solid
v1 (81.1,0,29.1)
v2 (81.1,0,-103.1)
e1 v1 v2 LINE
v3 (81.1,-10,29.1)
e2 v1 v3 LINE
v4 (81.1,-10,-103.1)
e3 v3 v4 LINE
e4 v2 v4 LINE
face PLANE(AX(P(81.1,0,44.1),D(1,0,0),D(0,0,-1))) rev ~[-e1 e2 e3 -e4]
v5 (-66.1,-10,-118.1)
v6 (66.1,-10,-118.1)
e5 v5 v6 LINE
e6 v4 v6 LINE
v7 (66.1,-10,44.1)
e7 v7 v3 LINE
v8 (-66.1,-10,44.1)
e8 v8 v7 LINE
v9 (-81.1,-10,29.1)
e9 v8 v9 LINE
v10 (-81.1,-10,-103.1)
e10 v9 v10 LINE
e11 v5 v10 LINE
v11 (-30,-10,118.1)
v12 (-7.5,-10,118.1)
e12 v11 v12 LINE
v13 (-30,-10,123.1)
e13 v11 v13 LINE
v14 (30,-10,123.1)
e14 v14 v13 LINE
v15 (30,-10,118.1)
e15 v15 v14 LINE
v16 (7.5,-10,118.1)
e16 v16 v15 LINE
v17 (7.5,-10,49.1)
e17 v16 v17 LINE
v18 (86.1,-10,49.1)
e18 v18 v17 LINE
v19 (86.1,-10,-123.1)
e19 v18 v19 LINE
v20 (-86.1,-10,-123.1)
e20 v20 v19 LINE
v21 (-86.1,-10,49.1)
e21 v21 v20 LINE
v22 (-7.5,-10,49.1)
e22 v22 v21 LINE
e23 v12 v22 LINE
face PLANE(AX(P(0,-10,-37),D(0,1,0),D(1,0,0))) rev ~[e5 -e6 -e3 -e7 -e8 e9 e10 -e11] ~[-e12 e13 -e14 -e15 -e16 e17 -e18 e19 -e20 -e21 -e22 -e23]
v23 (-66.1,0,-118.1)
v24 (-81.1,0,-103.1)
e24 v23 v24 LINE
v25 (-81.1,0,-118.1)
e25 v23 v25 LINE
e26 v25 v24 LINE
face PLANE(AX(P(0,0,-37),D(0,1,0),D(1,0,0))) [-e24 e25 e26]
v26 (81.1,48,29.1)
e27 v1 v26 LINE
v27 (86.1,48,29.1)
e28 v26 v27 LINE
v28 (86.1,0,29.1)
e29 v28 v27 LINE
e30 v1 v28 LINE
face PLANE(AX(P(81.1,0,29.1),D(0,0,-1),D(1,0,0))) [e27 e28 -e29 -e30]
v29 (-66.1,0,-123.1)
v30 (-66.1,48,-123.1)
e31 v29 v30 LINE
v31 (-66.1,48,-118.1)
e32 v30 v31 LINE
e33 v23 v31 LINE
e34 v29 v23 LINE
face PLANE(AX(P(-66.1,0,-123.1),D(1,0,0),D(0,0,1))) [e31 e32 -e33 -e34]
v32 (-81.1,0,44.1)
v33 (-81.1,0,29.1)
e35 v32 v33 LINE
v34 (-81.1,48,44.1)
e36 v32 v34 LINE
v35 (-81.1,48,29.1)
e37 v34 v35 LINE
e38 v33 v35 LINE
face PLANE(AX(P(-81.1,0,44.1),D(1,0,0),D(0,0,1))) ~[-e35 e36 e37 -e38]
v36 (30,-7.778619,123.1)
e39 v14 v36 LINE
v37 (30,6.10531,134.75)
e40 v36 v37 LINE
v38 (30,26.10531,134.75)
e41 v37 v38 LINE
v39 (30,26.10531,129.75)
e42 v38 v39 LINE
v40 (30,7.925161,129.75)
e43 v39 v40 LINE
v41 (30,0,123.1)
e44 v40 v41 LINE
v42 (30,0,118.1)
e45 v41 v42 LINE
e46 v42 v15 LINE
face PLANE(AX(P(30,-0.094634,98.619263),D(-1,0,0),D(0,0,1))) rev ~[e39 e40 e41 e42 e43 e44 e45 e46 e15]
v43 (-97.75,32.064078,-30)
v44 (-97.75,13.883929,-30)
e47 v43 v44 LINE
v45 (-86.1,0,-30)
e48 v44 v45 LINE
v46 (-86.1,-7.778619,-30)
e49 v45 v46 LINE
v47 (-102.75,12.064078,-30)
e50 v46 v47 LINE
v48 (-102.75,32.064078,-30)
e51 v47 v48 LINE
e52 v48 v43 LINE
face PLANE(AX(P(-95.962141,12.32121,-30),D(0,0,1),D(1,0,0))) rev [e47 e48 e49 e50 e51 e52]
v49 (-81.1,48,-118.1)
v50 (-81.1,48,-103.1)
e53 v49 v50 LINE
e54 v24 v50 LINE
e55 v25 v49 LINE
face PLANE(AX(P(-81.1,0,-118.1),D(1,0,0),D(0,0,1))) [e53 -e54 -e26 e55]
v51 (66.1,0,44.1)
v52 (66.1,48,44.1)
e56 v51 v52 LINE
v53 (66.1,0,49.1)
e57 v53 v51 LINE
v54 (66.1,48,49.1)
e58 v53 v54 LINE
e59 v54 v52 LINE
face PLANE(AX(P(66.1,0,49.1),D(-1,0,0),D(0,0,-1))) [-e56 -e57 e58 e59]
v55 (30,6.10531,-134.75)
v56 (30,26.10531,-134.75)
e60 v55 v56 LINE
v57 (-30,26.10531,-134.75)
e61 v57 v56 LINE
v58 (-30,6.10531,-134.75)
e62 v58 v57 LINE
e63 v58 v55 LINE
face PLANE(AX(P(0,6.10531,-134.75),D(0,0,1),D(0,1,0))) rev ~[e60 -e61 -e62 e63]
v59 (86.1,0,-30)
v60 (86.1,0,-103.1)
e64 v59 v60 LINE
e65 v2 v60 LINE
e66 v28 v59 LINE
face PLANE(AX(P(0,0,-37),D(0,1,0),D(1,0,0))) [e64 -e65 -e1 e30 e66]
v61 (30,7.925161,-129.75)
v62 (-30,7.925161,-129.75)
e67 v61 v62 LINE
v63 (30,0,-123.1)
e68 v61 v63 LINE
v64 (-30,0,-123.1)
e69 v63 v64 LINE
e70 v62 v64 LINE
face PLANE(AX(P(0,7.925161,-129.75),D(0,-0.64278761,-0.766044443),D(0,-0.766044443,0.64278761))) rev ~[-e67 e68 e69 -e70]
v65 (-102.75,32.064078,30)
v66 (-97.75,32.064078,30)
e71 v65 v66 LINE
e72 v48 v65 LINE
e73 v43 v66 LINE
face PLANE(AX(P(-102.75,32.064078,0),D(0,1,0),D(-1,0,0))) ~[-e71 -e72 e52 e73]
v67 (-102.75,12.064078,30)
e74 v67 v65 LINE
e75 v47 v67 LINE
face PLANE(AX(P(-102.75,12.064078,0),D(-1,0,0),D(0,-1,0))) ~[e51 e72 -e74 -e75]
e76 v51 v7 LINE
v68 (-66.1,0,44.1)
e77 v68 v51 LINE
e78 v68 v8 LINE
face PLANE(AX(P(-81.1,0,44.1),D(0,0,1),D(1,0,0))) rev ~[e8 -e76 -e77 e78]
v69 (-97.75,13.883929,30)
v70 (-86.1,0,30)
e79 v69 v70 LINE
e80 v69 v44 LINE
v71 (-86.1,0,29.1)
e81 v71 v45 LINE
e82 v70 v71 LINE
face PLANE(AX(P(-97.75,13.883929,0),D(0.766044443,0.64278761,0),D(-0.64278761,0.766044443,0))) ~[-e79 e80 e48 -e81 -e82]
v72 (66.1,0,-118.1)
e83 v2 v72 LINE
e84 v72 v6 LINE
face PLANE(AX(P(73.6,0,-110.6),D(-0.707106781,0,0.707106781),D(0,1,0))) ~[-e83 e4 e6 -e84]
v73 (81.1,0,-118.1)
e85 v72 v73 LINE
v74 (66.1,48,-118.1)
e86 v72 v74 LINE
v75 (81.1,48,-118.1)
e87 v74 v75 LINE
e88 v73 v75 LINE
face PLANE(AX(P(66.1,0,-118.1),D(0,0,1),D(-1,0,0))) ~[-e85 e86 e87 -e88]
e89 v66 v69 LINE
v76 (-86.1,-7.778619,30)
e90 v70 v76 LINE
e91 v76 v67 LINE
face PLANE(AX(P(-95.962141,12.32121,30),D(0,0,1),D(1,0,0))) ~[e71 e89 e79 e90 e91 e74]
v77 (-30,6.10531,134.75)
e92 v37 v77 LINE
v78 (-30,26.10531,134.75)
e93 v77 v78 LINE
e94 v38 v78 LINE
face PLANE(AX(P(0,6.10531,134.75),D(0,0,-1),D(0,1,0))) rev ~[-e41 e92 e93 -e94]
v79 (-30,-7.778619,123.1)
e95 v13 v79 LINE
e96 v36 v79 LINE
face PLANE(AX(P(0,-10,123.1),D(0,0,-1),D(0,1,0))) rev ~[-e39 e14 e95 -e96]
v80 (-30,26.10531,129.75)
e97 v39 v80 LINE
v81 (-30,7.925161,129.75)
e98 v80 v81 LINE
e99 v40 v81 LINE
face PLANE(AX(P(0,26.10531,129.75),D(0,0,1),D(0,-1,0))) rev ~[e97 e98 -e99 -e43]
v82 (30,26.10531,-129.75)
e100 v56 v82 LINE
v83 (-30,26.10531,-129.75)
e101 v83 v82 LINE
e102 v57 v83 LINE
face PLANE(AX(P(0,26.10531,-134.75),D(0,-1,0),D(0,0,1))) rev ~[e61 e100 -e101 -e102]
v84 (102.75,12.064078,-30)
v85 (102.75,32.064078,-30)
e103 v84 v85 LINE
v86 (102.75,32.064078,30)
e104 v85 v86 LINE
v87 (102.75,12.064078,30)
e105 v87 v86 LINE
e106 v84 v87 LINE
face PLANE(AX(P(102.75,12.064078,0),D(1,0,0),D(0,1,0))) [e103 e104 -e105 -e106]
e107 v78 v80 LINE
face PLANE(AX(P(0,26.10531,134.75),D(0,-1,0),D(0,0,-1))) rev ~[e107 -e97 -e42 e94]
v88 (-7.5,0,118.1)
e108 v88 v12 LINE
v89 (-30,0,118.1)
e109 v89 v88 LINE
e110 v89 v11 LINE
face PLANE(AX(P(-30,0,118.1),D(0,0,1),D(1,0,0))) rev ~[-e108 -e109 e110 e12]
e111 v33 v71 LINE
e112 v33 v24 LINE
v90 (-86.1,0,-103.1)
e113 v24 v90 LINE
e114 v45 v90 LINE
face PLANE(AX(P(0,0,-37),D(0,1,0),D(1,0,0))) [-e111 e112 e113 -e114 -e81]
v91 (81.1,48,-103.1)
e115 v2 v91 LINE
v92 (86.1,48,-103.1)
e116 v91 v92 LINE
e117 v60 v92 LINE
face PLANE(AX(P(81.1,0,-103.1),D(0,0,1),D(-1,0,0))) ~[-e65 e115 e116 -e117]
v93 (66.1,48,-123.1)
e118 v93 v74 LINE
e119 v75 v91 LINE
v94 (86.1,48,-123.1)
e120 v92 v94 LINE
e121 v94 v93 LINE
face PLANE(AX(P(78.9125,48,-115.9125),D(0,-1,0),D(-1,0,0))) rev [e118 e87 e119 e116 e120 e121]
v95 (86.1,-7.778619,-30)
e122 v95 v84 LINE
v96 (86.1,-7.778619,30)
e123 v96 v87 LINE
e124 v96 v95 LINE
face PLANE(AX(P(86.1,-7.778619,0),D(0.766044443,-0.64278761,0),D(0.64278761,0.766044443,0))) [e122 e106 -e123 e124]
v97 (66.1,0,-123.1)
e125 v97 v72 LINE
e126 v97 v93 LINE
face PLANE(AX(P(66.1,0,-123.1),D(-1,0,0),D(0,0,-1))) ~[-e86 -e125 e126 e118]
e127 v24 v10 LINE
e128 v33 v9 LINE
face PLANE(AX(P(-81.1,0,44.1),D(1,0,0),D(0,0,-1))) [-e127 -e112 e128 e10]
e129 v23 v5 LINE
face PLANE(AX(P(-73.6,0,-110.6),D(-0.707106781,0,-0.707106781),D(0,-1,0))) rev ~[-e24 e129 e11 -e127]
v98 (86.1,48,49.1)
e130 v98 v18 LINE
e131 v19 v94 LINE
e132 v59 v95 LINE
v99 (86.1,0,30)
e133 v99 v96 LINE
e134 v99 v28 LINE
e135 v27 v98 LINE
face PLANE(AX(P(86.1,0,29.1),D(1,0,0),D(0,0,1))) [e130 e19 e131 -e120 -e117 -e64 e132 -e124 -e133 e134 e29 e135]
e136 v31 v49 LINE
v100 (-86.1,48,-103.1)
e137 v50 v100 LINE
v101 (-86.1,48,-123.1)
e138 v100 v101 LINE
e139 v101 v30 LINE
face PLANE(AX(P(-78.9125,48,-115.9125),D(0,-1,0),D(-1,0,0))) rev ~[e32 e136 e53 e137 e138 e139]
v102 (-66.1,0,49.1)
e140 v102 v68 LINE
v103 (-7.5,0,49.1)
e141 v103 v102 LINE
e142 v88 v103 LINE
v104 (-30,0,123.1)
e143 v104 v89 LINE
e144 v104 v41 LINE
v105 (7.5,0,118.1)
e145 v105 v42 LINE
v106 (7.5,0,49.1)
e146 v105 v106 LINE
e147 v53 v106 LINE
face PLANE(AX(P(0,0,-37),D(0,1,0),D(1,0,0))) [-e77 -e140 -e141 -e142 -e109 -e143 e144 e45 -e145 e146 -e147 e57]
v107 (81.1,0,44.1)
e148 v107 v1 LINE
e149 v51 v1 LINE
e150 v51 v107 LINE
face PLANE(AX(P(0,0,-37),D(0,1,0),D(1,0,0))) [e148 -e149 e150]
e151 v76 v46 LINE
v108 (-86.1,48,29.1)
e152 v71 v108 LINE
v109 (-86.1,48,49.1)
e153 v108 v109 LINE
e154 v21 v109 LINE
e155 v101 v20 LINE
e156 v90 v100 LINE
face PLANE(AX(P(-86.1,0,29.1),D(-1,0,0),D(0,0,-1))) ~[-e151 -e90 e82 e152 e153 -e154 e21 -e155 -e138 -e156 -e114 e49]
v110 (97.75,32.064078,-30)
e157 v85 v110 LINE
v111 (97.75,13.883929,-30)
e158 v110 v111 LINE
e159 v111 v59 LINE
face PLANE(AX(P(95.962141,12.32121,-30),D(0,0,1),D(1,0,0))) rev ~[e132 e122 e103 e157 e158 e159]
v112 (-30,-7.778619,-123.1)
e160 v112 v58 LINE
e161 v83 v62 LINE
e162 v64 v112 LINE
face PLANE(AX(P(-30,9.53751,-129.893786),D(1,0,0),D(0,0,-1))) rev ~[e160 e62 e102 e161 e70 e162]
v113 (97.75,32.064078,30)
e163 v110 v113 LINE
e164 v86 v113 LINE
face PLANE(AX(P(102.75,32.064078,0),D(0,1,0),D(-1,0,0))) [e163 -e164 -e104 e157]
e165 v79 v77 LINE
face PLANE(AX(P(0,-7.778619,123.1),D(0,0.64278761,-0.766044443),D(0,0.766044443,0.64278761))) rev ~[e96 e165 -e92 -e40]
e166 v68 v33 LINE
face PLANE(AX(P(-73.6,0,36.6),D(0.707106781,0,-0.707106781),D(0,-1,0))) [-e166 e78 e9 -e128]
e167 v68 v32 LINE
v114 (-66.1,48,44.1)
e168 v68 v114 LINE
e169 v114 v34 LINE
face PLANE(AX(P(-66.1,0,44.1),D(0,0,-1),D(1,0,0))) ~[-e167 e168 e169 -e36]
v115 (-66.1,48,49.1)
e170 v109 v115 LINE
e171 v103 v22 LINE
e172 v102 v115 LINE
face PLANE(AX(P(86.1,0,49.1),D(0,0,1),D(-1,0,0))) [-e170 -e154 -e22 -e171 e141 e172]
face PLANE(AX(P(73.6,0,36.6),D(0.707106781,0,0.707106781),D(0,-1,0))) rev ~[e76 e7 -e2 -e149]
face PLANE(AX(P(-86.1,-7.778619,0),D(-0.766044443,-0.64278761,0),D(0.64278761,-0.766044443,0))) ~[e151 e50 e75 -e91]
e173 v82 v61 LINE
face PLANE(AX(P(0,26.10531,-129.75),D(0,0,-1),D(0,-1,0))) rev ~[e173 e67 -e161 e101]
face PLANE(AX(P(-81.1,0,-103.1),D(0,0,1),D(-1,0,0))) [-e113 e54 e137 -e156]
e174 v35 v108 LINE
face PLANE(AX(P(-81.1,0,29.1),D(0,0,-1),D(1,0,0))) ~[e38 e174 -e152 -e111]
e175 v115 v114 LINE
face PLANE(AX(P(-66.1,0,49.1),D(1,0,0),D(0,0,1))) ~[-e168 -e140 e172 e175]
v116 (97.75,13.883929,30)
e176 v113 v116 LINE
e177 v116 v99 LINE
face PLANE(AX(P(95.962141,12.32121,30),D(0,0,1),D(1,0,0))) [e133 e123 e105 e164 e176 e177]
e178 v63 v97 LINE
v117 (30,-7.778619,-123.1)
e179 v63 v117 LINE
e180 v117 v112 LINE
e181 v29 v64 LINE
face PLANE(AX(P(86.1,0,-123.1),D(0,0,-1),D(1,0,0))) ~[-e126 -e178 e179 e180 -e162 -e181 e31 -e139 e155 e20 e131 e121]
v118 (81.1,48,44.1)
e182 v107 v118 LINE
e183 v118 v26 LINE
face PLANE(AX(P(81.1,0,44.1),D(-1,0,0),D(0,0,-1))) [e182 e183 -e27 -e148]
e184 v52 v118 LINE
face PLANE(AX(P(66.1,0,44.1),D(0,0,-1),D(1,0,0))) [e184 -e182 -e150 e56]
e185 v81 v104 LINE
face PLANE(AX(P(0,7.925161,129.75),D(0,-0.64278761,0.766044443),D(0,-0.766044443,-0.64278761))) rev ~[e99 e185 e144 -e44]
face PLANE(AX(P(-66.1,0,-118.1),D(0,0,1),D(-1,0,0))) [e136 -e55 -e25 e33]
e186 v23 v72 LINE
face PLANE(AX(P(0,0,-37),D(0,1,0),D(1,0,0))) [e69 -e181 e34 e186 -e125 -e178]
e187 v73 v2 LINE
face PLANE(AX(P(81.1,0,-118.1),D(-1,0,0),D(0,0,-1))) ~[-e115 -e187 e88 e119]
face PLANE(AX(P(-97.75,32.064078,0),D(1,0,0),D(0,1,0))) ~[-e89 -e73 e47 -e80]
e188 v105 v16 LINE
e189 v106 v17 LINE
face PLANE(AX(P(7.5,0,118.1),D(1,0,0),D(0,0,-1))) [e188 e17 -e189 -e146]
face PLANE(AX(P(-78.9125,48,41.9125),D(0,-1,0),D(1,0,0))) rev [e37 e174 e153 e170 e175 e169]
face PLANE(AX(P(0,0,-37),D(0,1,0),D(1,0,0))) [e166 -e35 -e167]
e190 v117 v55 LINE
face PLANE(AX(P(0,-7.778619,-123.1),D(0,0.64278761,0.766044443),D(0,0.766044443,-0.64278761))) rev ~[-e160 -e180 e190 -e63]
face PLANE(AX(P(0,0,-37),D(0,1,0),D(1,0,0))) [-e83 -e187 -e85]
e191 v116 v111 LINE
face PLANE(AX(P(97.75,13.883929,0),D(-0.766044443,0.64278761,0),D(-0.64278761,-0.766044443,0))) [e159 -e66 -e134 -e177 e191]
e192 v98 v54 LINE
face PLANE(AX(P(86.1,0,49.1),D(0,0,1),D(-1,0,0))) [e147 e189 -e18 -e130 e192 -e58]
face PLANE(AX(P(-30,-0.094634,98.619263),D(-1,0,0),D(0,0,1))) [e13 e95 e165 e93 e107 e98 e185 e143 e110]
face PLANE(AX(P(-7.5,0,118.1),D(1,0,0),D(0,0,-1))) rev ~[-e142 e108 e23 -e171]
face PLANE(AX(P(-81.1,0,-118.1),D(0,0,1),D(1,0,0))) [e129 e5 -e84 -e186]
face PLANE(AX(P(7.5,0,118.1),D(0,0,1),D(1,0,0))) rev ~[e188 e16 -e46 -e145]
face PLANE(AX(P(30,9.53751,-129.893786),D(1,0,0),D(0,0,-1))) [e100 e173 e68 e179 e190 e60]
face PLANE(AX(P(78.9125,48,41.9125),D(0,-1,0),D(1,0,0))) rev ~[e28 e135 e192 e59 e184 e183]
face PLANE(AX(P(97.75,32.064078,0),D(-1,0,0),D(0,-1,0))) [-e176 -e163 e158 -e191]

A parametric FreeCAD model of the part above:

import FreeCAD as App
import Part
import Sketcher
Q = App.Units.Quantity


def edges_at(feature, points):
    """Names of the edges that pass closest to the given points."""
    edges = feature.Shape.Edges
    near = lambda p: min(range(len(edges)), key=lambda i: edges[i].distToShape(Part.Vertex(*p))[0])
    return sorted({f"Edge{near(p) + 1}" for p in points})


def add_polygon(sketch, points):
    """Adds a closed chain of lines whose ends are joined by coincident constraints."""
    first, n = sketch.GeometryCount, len(points)
    for a, b in zip(points, points[1:] + points[:1]):
        sketch.addGeometry(Part.LineSegment(App.Vector(*a, 0), App.Vector(*b, 0)), False)
    for i in range(n):
        sketch.addConstraint(Sketcher.Constraint("Coincident", first + i, 2, first + (i + 1) % n, 1))

doc = App.newDocument("Part")
body = doc.addObject("PartDesign::Body", "Body")

# Sketch on XZ plane
sketch1 = body.newObject("Sketcher::SketchObject", "Sketch")
sketch1.AttachmentSupport = (doc.getObject("XZ_Plane"), [""])
sketch1.MapMode = "FlatFace"
add_polygon(sketch1, [(-86, -123), (-86, 49), (86, 49), (86, -123)])  # lines 0-3
add_polygon(sketch1, [(81, 44), (-81, 44), (-81, -118), (81, -118)])  # lines 4-7
sketch1.addConstraint([
    Sketcher.Constraint("Vertical", 0),
    Sketcher.Constraint("Horizontal", 1),
    Sketcher.Constraint("Vertical", 2),
    Sketcher.Constraint("Horizontal", 3),
    Sketcher.Constraint("Horizontal", 4),
    Sketcher.Constraint("Vertical", 5),
    Sketcher.Constraint("Horizontal", 6),
    Sketcher.Constraint("Vertical", 7),
    Sketcher.Constraint("Equal", 3, 0),
    Sketcher.Constraint("Equal", 6, 5),
    Sketcher.Constraint("DistanceX", 1, 1, 1, 2, Q("172.2 mm")),
    Sketcher.Constraint("DistanceX", 4, 2, 4, 1, Q("162.2 mm")),
    Sketcher.Constraint("DistanceX", 0, 2, 4, 2, Q("5 mm")),
    Sketcher.Constraint("DistanceY", 4, 2, 0, 2, Q("5 mm")),
    Sketcher.Constraint("DistanceX", 0, 2, -1, 1, Q("86.1 mm")),
    Sketcher.Constraint("DistanceY", -1, 1, 0, 2, Q("49.1 mm")),
])
pad1 = body.newObject("PartDesign::Pad", "Pad")
pad1.Profile = sketch1
pad1.Length = 10
doc.recompute()

chamfer = body.newObject("PartDesign::Chamfer", "Chamfer")
chamfer.Base = (pad1, edges_at(pad1, [
    (-81.1, -5, 44.1),
    (-81.1, -5, -118.1),
    (81.1, -5, -118.1),
    (81.1, -5, 44.1),
]))
chamfer.Size = 15

# Sketch on XZ plane
sketch2 = body.newObject("Sketcher::SketchObject", "Sketch001")
sketch2.AttachmentSupport = (doc.getObject("XZ_Plane"), [""])
sketch2.MapMode = "FlatFace"
add_polygon(sketch2, [(-86, -103), (-81, -103), (-81, -118), (-66, -118), (-66, -123), (-86, -123)])  # lines 0-5
sketch2.addConstraint([
    Sketcher.Constraint("Horizontal", 0),
    Sketcher.Constraint("Vertical", 1),
    Sketcher.Constraint("Horizontal", 2),
    Sketcher.Constraint("Vertical", 3),
    Sketcher.Constraint("Horizontal", 4),
    Sketcher.Constraint("Vertical", 5),
    Sketcher.Constraint("Equal", 2, 1),
    Sketcher.Constraint("Equal", 0, 3),
    Sketcher.Constraint("DistanceX", 0, 1, 0, 2, Q("5 mm")),
    Sketcher.Constraint("DistanceX", 2, 1, 2, 2, Q("15 mm")),
    Sketcher.Constraint("DistanceX", 0, 2, -1, 1, Q("81.1 mm")),
    Sketcher.Constraint("DistanceY", 0, 2, -1, 1, Q("103.1 mm")),
])
pad2 = body.newObject("PartDesign::Pad", "Pad001")
pad2.Profile = sketch2
pad2.Length = 48
pad2.Reversed = True
doc.recompute()

datumplane = body.newObject("PartDesign::Plane", "DatumPlane")
datumplane.AttachmentSupport = (doc.getObject("XY_Plane"), [""])
datumplane.MapMode = "FlatFace"
datumplane.AttachmentOffset = App.Placement(App.Vector(0, 0, -37), App.Rotation())
mirrored = body.newObject("PartDesign::Mirrored", "Mirrored")
mirrored.Originals = [pad2]
mirrored.MirrorPlane = (datumplane, [""])
body.Tip = mirrored
doc.recompute()

mirrored2 = body.newObject("PartDesign::Mirrored", "Mirrored001")
mirrored2.Originals = [pad2]
mirrored2.MirrorPlane = (doc.getObject("YZ_Plane"), [""])
body.Tip = mirrored2

# Sketch on XZ plane
sketch3 = body.newObject("Sketcher::SketchObject", "Sketch002")
sketch3.AttachmentSupport = (doc.getObject("XZ_Plane"), [""])
sketch3.MapMode = "FlatFace"
add_polygon(sketch3, [(86, 29), (81, 29), (81, 44), (66, 44), (66, 49), (86, 49)])  # lines 0-5
sketch3.addConstraint([
    Sketcher.Constraint("Horizontal", 0),
    Sketcher.Constraint("Vertical", 1),
    Sketcher.Constraint("Horizontal", 2),
    Sketcher.Constraint("Vertical", 3),
    Sketcher.Constraint("Horizontal", 4),
    Sketcher.Constraint("Vertical", 5),
    Sketcher.Constraint("Equal", 2, 1),
    Sketcher.Constraint("Equal", 0, 3),
    Sketcher.Constraint("DistanceX", 0, 2, 0, 1, Q("5 mm")),
    Sketcher.Constraint("DistanceX", 2, 2, 2, 1, Q("15 mm")),
    Sketcher.Constraint("DistanceX", -1, 1, 0, 2, Q("81.1 mm")),
    Sketcher.Constraint("DistanceY", -1, 1, 0, 2, Q("29.1 mm")),
])
pad3 = body.newObject("PartDesign::Pad", "Pad002")
pad3.Profile = sketch3
pad3.Length = 48
pad3.Reversed = True

# Sketch on XY plane
sketch4 = body.newObject("Sketcher::SketchObject", "Sketch003")
sketch4.AttachmentSupport = (doc.getObject("XY_Plane"), [""])
sketch4.MapMode = "FlatFace"
add_polygon(sketch4, [(86, -8), (103, 12), (103, 32), (98, 32), (98, 14), (86, 0)])  # lines 0-5
sketch4.addConstraint([
    Sketcher.Constraint("Vertical", 1),
    Sketcher.Constraint("Horizontal", 2),
    Sketcher.Constraint("Vertical", 3),
    Sketcher.Constraint("Vertical", 5),
    Sketcher.Constraint("PointOnObject", 4, 2, -1),
    Sketcher.Constraint("Parallel", 0, 4),
    Sketcher.Constraint("DistanceX", 2, 2, 2, 1, Q("5 mm")),
    Sketcher.Constraint("DistanceY", 1, 1, 1, 2, Q("20 mm")),
    Sketcher.Constraint("Angle", 0, Q("50 deg")),
    Sketcher.Constraint("DistanceX", -1, 1, 4, 2, Q("86.1 mm")),
    Sketcher.Constraint("DistanceX", -1, 1, 0, 2, Q("102.75 mm")),
    Sketcher.Constraint("DistanceY", 3, 2, 3, 1, Q("18.180149 mm")),
])
pad4 = body.newObject("PartDesign::Pad", "Pad003")
pad4.Profile = sketch4
pad4.Length = 60
pad4.Midplane = True
doc.recompute()

mirrored3 = body.newObject("PartDesign::Mirrored", "Mirrored002")
mirrored3.Originals = [pad4]
mirrored3.MirrorPlane = (doc.getObject("YZ_Plane"), [""])
body.Tip = mirrored3

# Sketch on YZ plane
sketch5 = body.newObject("Sketcher::SketchObject", "Sketch004")
sketch5.AttachmentSupport = (doc.getObject("YZ_Plane"), [""])
sketch5.MapMode = "FlatFace"
add_polygon(sketch5, [(-7.8, -123.1), (6.1, -134.8), (26.1, -134.8), (26.1, -129.8), (7.9, -129.8), (0, -123.1)])  # lines 0-5
add_polygon(sketch5, [(-10, 123.1), (-10, 49.1), (0, 49.1), (0, 123.1), (7.9, 129.8), (26.1, 129.8), (26.1, 134.8), (6.1, 134.8), (-7.8, 123.1)])  # lines 6-14
sketch5.addConstraint([
    Sketcher.Constraint("Horizontal", 1),
    Sketcher.Constraint("Vertical", 2),
    Sketcher.Constraint("Horizontal", 3),
    Sketcher.Constraint("Horizontal", 5),
    Sketcher.Constraint("Vertical", 6),
    Sketcher.Constraint("Horizontal", 7),
    Sketcher.Constraint("Vertical", 8),
    Sketcher.Constraint("Horizontal", 10),
    Sketcher.Constraint("Vertical", 11),
    Sketcher.Constraint("Horizontal", 12),
    Sketcher.Constraint("Horizontal", 14),
    Sketcher.Constraint("Symmetric", 4, 2, 8, 2, -1, 1),
    Sketcher.Constraint("Symmetric", 3, 2, 9, 2, -1),
    Sketcher.Constraint("Symmetric", 1, 2, 11, 2, -1),
    Sketcher.Constraint("Symmetric", 5, 2, 13, 2, -1),
    Sketcher.Constraint("PointOnObject", 4, 2, -2),
    Sketcher.Constraint("Parallel", 0, 4),
    Sketcher.Constraint("Parallel", 9, 13),
    Sketcher.Constraint("DistanceX", 1, 1, 1, 2, Q("20 mm")),
    Sketcher.Constraint("DistanceX", 7, 1, 7, 2, Q("10 mm")),
    Sketcher.Constraint("DistanceY", 2, 1, 2, 2, Q("5 mm")),
    Sketcher.Constraint("DistanceY", 6, 2, 6, 1, Q("74 mm")),
    Sketcher.Constraint("Angle", 0, Q("-40 deg")),
    Sketcher.Constraint("DistanceY", 4, 2, -1, 1, Q("123.1 mm")),
    Sketcher.Constraint("DistanceY", 0, 2, -1, 1, Q("134.75 mm")),
    Sketcher.Constraint("DistanceX", 3, 2, 3, 1, Q("18.180149 mm")),
])
pad5 = body.newObject("PartDesign::Pad", "Pad004")
pad5.Profile = sketch5
pad5.Length = 60
pad5.Midplane = True

# Sketch on XZ plane
sketch6 = body.newObject("Sketcher::SketchObject", "Sketch005")
sketch6.AttachmentSupport = (doc.getObject("XZ_Plane"), [""])
sketch6.MapMode = "FlatFace"
add_polygon(sketch6, [(-30, 49), (-30, 118), (-8, 118), (-8, 49)])  # lines 0-3
add_polygon(sketch6, [(8, 49), (8, 118), (30, 118), (30, 49)])  # lines 4-7
sketch6.addConstraint([
    Sketcher.Constraint("Vertical", 0),
    Sketcher.Constraint("Horizontal", 1),
    Sketcher.Constraint("Vertical", 2),
    Sketcher.Constraint("Horizontal", 3),
    Sketcher.Constraint("Vertical", 4),
    Sketcher.Constraint("Horizontal", 5),
    Sketcher.Constraint("Vertical", 6),
    Sketcher.Constraint("Horizontal", 7),
    Sketcher.Constraint("Symmetric", 1, 2, 4, 2, -2),
    Sketcher.Constraint("Symmetric", 3, 2, 6, 2, -2),
    Sketcher.Constraint("DistanceY", 0, 1, 0, 2, Q("69 mm")),
    Sketcher.Constraint("DistanceX", 1, 1, 1, 2, Q("22.5 mm")),
    Sketcher.Constraint("DistanceX", 0, 2, -1, 1, Q("30 mm")),
    Sketcher.Constraint("DistanceY", -1, 1, 0, 2, Q("118.1 mm")),
])
pocket1 = body.newObject("PartDesign::Pocket", "Pocket")
pocket1.Profile = sketch6
pocket1.Type = "ThroughAll"
pocket1.Reversed = True

doc.recompute()
